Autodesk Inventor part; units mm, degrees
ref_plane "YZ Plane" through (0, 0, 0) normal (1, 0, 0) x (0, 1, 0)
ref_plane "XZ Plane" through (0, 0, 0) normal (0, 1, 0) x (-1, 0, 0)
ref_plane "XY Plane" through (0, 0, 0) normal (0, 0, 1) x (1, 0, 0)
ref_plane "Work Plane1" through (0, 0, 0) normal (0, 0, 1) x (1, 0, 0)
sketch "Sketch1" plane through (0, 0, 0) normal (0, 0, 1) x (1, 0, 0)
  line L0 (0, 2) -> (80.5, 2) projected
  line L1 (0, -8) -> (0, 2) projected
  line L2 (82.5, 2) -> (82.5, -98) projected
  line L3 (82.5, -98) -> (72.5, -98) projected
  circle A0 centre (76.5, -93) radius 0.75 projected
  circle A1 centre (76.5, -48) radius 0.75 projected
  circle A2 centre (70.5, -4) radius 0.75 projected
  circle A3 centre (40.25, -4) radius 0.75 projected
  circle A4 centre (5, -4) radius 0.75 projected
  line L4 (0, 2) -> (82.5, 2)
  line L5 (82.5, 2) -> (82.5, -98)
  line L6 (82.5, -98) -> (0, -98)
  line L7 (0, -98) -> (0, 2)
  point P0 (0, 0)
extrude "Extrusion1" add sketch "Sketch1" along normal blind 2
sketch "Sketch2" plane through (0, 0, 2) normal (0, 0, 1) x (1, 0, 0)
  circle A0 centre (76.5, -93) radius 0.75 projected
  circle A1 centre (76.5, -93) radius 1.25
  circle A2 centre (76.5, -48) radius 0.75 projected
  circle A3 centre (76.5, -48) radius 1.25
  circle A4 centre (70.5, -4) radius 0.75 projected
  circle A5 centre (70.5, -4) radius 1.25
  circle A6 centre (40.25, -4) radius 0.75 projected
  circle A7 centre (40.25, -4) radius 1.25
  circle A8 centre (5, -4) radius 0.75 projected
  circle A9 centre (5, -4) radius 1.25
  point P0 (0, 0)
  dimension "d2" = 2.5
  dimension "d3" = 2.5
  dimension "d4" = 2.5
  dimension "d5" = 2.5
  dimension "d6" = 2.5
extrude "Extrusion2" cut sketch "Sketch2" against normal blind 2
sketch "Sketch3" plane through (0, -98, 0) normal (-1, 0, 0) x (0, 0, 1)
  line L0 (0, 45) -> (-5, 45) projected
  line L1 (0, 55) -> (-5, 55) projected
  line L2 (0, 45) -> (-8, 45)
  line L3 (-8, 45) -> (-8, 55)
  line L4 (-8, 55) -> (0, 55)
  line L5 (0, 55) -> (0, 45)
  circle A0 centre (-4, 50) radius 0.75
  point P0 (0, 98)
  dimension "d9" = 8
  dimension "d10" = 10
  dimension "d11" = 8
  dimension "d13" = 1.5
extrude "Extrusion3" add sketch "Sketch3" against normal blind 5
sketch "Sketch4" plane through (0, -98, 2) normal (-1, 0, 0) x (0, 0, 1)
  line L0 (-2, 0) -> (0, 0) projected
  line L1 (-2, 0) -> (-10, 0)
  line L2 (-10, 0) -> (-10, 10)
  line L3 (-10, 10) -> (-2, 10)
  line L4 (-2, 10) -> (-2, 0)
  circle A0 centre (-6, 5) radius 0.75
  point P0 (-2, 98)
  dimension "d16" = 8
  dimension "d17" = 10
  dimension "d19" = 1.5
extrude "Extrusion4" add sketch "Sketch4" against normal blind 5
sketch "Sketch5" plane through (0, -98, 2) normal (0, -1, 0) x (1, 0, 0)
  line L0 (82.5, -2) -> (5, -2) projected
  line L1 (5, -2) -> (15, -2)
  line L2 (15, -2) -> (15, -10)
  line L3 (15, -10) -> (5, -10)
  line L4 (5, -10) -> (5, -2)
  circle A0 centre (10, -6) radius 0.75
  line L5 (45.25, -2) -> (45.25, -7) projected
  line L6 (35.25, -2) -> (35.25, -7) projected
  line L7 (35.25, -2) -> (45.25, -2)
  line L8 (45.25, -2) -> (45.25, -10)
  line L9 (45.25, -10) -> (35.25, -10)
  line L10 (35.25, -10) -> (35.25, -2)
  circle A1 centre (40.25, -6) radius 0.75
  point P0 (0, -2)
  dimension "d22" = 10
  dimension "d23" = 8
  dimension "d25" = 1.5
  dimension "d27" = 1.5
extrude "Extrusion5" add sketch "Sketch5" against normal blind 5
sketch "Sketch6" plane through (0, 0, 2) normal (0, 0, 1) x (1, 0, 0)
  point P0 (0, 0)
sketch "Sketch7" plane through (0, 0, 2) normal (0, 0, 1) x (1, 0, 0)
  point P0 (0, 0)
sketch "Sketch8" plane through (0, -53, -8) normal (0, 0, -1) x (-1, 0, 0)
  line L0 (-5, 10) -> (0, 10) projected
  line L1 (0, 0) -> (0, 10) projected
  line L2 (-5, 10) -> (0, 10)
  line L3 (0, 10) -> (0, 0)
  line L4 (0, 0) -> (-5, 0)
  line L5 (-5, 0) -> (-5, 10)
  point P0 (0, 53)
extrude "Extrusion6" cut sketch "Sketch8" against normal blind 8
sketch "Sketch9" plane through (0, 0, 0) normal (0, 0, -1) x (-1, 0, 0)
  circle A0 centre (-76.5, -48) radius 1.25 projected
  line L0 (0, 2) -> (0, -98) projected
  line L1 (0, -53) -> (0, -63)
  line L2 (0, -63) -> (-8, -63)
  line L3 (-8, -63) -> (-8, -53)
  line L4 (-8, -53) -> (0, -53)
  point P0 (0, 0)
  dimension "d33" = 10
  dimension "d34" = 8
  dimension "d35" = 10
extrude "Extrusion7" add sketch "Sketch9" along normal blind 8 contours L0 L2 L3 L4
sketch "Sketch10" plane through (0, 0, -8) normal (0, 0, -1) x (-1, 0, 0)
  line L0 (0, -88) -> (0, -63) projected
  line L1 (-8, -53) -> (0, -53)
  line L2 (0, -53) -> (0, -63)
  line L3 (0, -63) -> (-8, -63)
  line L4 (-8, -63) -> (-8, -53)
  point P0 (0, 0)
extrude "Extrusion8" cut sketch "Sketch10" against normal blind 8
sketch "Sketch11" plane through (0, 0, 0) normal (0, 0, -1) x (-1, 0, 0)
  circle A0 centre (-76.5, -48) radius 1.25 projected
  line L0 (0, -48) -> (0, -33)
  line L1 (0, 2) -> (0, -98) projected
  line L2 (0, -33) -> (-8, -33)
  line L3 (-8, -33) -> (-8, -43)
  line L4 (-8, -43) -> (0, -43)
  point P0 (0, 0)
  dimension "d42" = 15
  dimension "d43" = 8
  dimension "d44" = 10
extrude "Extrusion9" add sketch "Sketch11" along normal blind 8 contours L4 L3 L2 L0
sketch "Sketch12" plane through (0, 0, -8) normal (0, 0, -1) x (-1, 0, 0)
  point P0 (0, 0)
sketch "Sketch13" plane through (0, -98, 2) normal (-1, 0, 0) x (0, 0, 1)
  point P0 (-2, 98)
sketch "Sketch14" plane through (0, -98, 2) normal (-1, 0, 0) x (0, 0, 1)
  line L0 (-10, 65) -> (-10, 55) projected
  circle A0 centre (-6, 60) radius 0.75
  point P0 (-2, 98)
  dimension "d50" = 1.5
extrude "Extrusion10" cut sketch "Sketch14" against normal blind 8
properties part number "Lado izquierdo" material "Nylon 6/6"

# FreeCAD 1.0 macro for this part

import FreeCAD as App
import Part
import Sketcher
from FreeCAD import Vector

doc = App.newDocument("Part")
body = doc.addObject("PartDesign::Body", "Body")

sketch1 = body.newObject("Sketcher::SketchObject", "Sketch")
sketch1.AttachmentSupport = (doc.getObject("XY_Plane"), [""])
sketch1.MapMode = "FlatFace"
sketch1.addGeometry(Part.LineSegment(Vector(82.5, 2, 0), Vector(0, 2, 0)), False)
sketch1.addGeometry(Part.LineSegment(Vector(0, 2, 0), Vector(0, -98, 0)), False)
sketch1.addGeometry(Part.LineSegment(Vector(0, -98, 0), Vector(82.5, -98, 0)), False)
sketch1.addGeometry(Part.LineSegment(Vector(82.5, -98, 0), Vector(82.5, 2, 0)), False)
sketch1.addGeometry(Part.Circle(Vector(76.5, -93, 0), Vector(0, 0, 1), 0.8), False)
sketch1.addGeometry(Part.Circle(Vector(5, -4, 0), Vector(0, 0, 1), 0.8), False)
sketch1.addGeometry(Part.Circle(Vector(40.2, -4, 0), Vector(0, 0, 1), 0.8), False)
sketch1.addGeometry(Part.Circle(Vector(76.5, -48, 0), Vector(0, 0, 1), 0.8), False)
sketch1.addGeometry(Part.Circle(Vector(70.5, -4, 0), Vector(0, 0, 1), 0.8), False)
sketch1.addConstraint(Sketcher.Constraint("Coincident", 0, 2, 1, 1))
sketch1.addConstraint(Sketcher.Constraint("Coincident", 1, 2, 2, 1))
sketch1.addConstraint(Sketcher.Constraint("Coincident", 2, 2, 3, 1))
sketch1.addConstraint(Sketcher.Constraint("Coincident", 3, 2, 0, 1))
sketch1.addConstraint(Sketcher.Constraint("Horizontal", 0))
sketch1.addConstraint(Sketcher.Constraint("Vertical", 1))
sketch1.addConstraint(Sketcher.Constraint("Horizontal", 2))
sketch1.addConstraint(Sketcher.Constraint("Vertical", 3))
sketch1.addConstraint(Sketcher.Constraint("Equal", 4, 5))
sketch1.addConstraint(Sketcher.Constraint("Equal", 5, 6))
sketch1.addConstraint(Sketcher.Constraint("Equal", 6, 7))
sketch1.addConstraint(Sketcher.Constraint("Equal", 7, 8))
sketch1.addConstraint(Sketcher.Constraint("PointOnObject", 0, 2, -2))
sketch1.addConstraint(Sketcher.Constraint("Horizontal", 5, 3, 6, 3))
sketch1.addConstraint(Sketcher.Constraint("Horizontal", 6, 3, 8, 3))
sketch1.addConstraint(Sketcher.Constraint("Vertical", 4, 3, 7, 3))
sketch1.addConstraint(Sketcher.Constraint("Diameter", 4, 1.5))
sketch1.addConstraint(Sketcher.Constraint("DistanceY", 1, 2, 1, 1, 100.0))
sketch1.addConstraint(Sketcher.Constraint("DistanceX", 0, 2, 0, 1, 82.5))
sketch1.addConstraint(Sketcher.Constraint("DistanceY", 4, 3, -1, 1, 93.0))
sketch1.addConstraint(Sketcher.Constraint("DistanceX", -1, 1, 5, 3, 5.0))
sketch1.addConstraint(Sketcher.Constraint("DistanceY", 5, 3, -1, 1, 4.0))
sketch1.addConstraint(Sketcher.Constraint("DistanceY", 7, 3, -1, 1, 48.0))
sketch1.addConstraint(Sketcher.Constraint("DistanceY", -1, 1, 0, 2, 2.0))
sketch1.addConstraint(Sketcher.Constraint("DistanceX", 8, 3, 7, 3, 6.0))
sketch1.addConstraint(Sketcher.Constraint("DistanceX", 4, 3, 2, 2, 6.0))
sketch1.addConstraint(Sketcher.Constraint("DistanceX", -1, 1, 6, 3, 40.25))
pad1 = body.newObject("PartDesign::Pad", "Pad")
pad1.Profile = sketch1
pad1.Length = 2

sketch2 = body.newObject("Sketcher::SketchObject", "Sketch001")
sketch2.AttachmentSupport = (doc.getObject("XY_Plane"), [""])
sketch2.MapMode = "FlatFace"
sketch2.AttachmentOffset = App.Placement(Vector(0, 0, 2), App.Rotation())
sketch2.addGeometry(Part.Circle(Vector(76.5, -93, 0), Vector(0, 0, 1), 1.2), False)
sketch2.addGeometry(Part.Circle(Vector(76.5, -93, 0), Vector(0, 0, 1), 0.8), False)
sketch2.addGeometry(Part.Circle(Vector(76.5, -48, 0), Vector(0, 0, 1), 1.2), False)
sketch2.addGeometry(Part.Circle(Vector(76.5, -48, 0), Vector(0, 0, 1), 0.8), False)
sketch2.addGeometry(Part.Circle(Vector(70.5, -4, 0), Vector(0, 0, 1), 1.2), False)
sketch2.addGeometry(Part.Circle(Vector(70.5, -4, 0), Vector(0, 0, 1), 0.8), False)
sketch2.addGeometry(Part.Circle(Vector(40.2, -4, 0), Vector(0, 0, 1), 1.2), False)
sketch2.addGeometry(Part.Circle(Vector(40.2, -4, 0), Vector(0, 0, 1), 0.8), False)
sketch2.addGeometry(Part.Circle(Vector(5, -4, 0), Vector(0, 0, 1), 1.2), False)
sketch2.addGeometry(Part.Circle(Vector(5, -4, 0), Vector(0, 0, 1), 0.8), False)
sketch2.addConstraint(Sketcher.Constraint("Coincident", 1, 3, 0, 3))
sketch2.addConstraint(Sketcher.Constraint("Coincident", 3, 3, 2, 3))
sketch2.addConstraint(Sketcher.Constraint("Coincident", 5, 3, 4, 3))
sketch2.addConstraint(Sketcher.Constraint("Coincident", 7, 3, 6, 3))
sketch2.addConstraint(Sketcher.Constraint("Coincident", 9, 3, 8, 3))
sketch2.addConstraint(Sketcher.Constraint("Equal", 0, 2))
sketch2.addConstraint(Sketcher.Constraint("Equal", 1, 3))
sketch2.addConstraint(Sketcher.Constraint("Equal", 2, 4))
sketch2.addConstraint(Sketcher.Constraint("Equal", 3, 5))
sketch2.addConstraint(Sketcher.Constraint("Equal", 4, 6))
sketch2.addConstraint(Sketcher.Constraint("Equal", 5, 7))
sketch2.addConstraint(Sketcher.Constraint("Equal", 6, 8))
sketch2.addConstraint(Sketcher.Constraint("Equal", 7, 9))
sketch2.addConstraint(Sketcher.Constraint("Horizontal", 5, 3, 6, 3))
sketch2.addConstraint(Sketcher.Constraint("Horizontal", 7, 3, 8, 3))
sketch2.addConstraint(Sketcher.Constraint("Vertical", 1, 3, 2, 3))
sketch2.addConstraint(Sketcher.Constraint("Diameter", 0, 2.5))
sketch2.addConstraint(Sketcher.Constraint("Diameter", 1, 1.5))
sketch2.addConstraint(Sketcher.Constraint("DistanceY", 0, 3, -1, 1, 93.0))
sketch2.addConstraint(Sketcher.Constraint("DistanceY", 2, 3, -1, 1, 48.0))
sketch2.addConstraint(Sketcher.Constraint("DistanceY", 4, 3, -1, 1, 4.0))
sketch2.addConstraint(Sketcher.Constraint("DistanceX", -1, 1, 8, 3, 5.0))
sketch2.addConstraint(Sketcher.Constraint("DistanceX", 4, 3, 2, 3, 6.0))
sketch2.addConstraint(Sketcher.Constraint("DistanceX", -1, 1, 0, 3, 76.5))
sketch2.addConstraint(Sketcher.Constraint("DistanceX", -1, 1, 6, 3, 40.25))
pocket1 = body.newObject("PartDesign::Pocket", "Pocket")
pocket1.Profile = sketch2
pocket1.Length = 2

sketch3 = body.newObject("Sketcher::SketchObject", "Sketch002")
sketch3.AttachmentSupport = (doc.getObject("YZ_Plane"), [""])
sketch3.MapMode = "FlatFace"
sketch3.addGeometry(Part.LineSegment(Vector(-53, -8, 0), Vector(-53, 0, 0)), False)
sketch3.addGeometry(Part.LineSegment(Vector(-53, 0, 0), Vector(-43, 0, 0)), False)
sketch3.addGeometry(Part.LineSegment(Vector(-43, 0, 0), Vector(-43, -8, 0)), False)
sketch3.addGeometry(Part.LineSegment(Vector(-43, -8, 0), Vector(-53, -8, 0)), False)
sketch3.addGeometry(Part.Circle(Vector(-48, -4, 0), Vector(0, 0, 1), 0.8), False)
sketch3.addConstraint(Sketcher.Constraint("Coincident", 0, 2, 1, 1))
sketch3.addConstraint(Sketcher.Constraint("Coincident", 1, 2, 2, 1))
sketch3.addConstraint(Sketcher.Constraint("Coincident", 2, 2, 3, 1))
sketch3.addConstraint(Sketcher.Constraint("Coincident", 3, 2, 0, 1))
sketch3.addConstraint(Sketcher.Constraint("Vertical", 0))
sketch3.addConstraint(Sketcher.Constraint("Horizontal", 1))
sketch3.addConstraint(Sketcher.Constraint("Vertical", 2))
sketch3.addConstraint(Sketcher.Constraint("Horizontal", 3))
sketch3.addConstraint(Sketcher.Constraint("PointOnObject", 0, 2, -1))
sketch3.addConstraint(Sketcher.Constraint("Diameter", 4, 1.5))
sketch3.addConstraint(Sketcher.Constraint("DistanceX", 1, 1, 1, 2, 10.0))
sketch3.addConstraint(Sketcher.Constraint("DistanceY", 0, 1, 0, 2, 8.0))
sketch3.addConstraint(Sketcher.Constraint("DistanceX", 4, 3, -1, 1, 48.0))
sketch3.addConstraint(Sketcher.Constraint("DistanceY", 4, 3, -1, 1, 4.0))
sketch3.addConstraint(Sketcher.Constraint("DistanceX", 0, 2, -1, 1, 53.0))
pad2 = body.newObject("PartDesign::Pad", "Pad001")
pad2.Profile = sketch3
pad2.Length = 5

sketch4 = body.newObject("Sketcher::SketchObject", "Sketch003")
sketch4.AttachmentSupport = (doc.getObject("YZ_Plane"), [""])
sketch4.MapMode = "FlatFace"
sketch4.addGeometry(Part.LineSegment(Vector(-98, -8, 0), Vector(-98, 0, 0)), False)
sketch4.addGeometry(Part.LineSegment(Vector(-98, 0, 0), Vector(-88, 0, 0)), False)
sketch4.addGeometry(Part.LineSegment(Vector(-88, 0, 0), Vector(-88, -8, 0)), False)
sketch4.addGeometry(Part.LineSegment(Vector(-88, -8, 0), Vector(-98, -8, 0)), False)
sketch4.addGeometry(Part.Circle(Vector(-93, -4, 0), Vector(0, 0, 1), 0.8), False)
sketch4.addConstraint(Sketcher.Constraint("Coincident", 0, 2, 1, 1))
sketch4.addConstraint(Sketcher.Constraint("Coincident", 1, 2, 2, 1))
sketch4.addConstraint(Sketcher.Constraint("Coincident", 2, 2, 3, 1))
sketch4.addConstraint(Sketcher.Constraint("Coincident", 3, 2, 0, 1))
sketch4.addConstraint(Sketcher.Constraint("Vertical", 0))
sketch4.addConstraint(Sketcher.Constraint("Horizontal", 1))
sketch4.addConstraint(Sketcher.Constraint("Vertical", 2))
sketch4.addConstraint(Sketcher.Constraint("Horizontal", 3))
sketch4.addConstraint(Sketcher.Constraint("PointOnObject", 0, 2, -1))
sketch4.addConstraint(Sketcher.Constraint("Diameter", 4, 1.5))
sketch4.addConstraint(Sketcher.Constraint("DistanceX", 1, 1, 1, 2, 10.0))
sketch4.addConstraint(Sketcher.Constraint("DistanceY", 0, 1, 0, 2, 8.0))
sketch4.addConstraint(Sketcher.Constraint("DistanceX", 4, 3, -1, 1, 93.0))
sketch4.addConstraint(Sketcher.Constraint("DistanceY", 4, 3, -1, 1, 4.0))
sketch4.addConstraint(Sketcher.Constraint("DistanceX", 0, 2, -1, 1, 98.0))
pad3 = body.newObject("PartDesign::Pad", "Pad002")
pad3.Profile = sketch4
pad3.Length = 5

sketch5 = body.newObject("Sketcher::SketchObject", "Sketch004")
sketch5.AttachmentSupport = (doc.getObject("XZ_Plane"), [""])
sketch5.MapMode = "FlatFace"
sketch5.AttachmentOffset = App.Placement(Vector(0, 0, 98), App.Rotation())
sketch5.addGeometry(Part.LineSegment(Vector(45.2, -8, 0), Vector(45.2, 0, 0)), False)
sketch5.addGeometry(Part.LineSegment(Vector(45.2, 0, 0), Vector(35.2, 0, 0)), False)
sketch5.addGeometry(Part.LineSegment(Vector(35.2, 0, 0), Vector(35.2, -8, 0)), False)
sketch5.addGeometry(Part.LineSegment(Vector(35.2, -8, 0), Vector(45.2, -8, 0)), False)
sketch5.addGeometry(Part.Circle(Vector(40.2, -4, 0), Vector(0, 0, 1), 0.8), False)
sketch5.addGeometry(Part.LineSegment(Vector(15, -8, 0), Vector(15, 0, 0)), False)
sketch5.addGeometry(Part.LineSegment(Vector(15, 0, 0), Vector(5, 0, 0)), False)
sketch5.addGeometry(Part.LineSegment(Vector(5, 0, 0), Vector(5, -8, 0)), False)
sketch5.addGeometry(Part.LineSegment(Vector(5, -8, 0), Vector(15, -8, 0)), False)
sketch5.addGeometry(Part.Circle(Vector(10, -4, 0), Vector(0, 0, 1), 0.8), False)
sketch5.addConstraint(Sketcher.Constraint("Coincident", 0, 2, 1, 1))
sketch5.addConstraint(Sketcher.Constraint("Coincident", 1, 2, 2, 1))
sketch5.addConstraint(Sketcher.Constraint("Coincident", 2, 2, 3, 1))
sketch5.addConstraint(Sketcher.Constraint("Coincident", 3, 2, 0, 1))
sketch5.addConstraint(Sketcher.Constraint("Coincident", 5, 2, 6, 1))
sketch5.addConstraint(Sketcher.Constraint("Coincident", 6, 2, 7, 1))
sketch5.addConstraint(Sketcher.Constraint("Coincident", 7, 2, 8, 1))
sketch5.addConstraint(Sketcher.Constraint("Coincident", 8, 2, 5, 1))
sketch5.addConstraint(Sketcher.Constraint("Vertical", 0))
sketch5.addConstraint(Sketcher.Constraint("Horizontal", 1))
sketch5.addConstraint(Sketcher.Constraint("Vertical", 2))
sketch5.addConstraint(Sketcher.Constraint("Horizontal", 3))
sketch5.addConstraint(Sketcher.Constraint("Vertical", 5))
sketch5.addConstraint(Sketcher.Constraint("Horizontal", 6))
sketch5.addConstraint(Sketcher.Constraint("Vertical", 7))
sketch5.addConstraint(Sketcher.Constraint("Horizontal", 8))
sketch5.addConstraint(Sketcher.Constraint("Equal", 4, 9))
sketch5.addConstraint(Sketcher.Constraint("PointOnObject", 0, 2, -1))
sketch5.addConstraint(Sketcher.Constraint("PointOnObject", 5, 2, -1))
sketch5.addConstraint(Sketcher.Constraint("Horizontal", 4, 3, 9, 3))
sketch5.addConstraint(Sketcher.Constraint("Horizontal", 3, 2, 7, 2))
sketch5.addConstraint(Sketcher.Constraint("Equal", 3, 6))
sketch5.addConstraint(Sketcher.Constraint("Diameter", 4, 1.5))
sketch5.addConstraint(Sketcher.Constraint("DistanceX", 1, 2, 1, 1, 10.0))
sketch5.addConstraint(Sketcher.Constraint("DistanceY", 0, 1, 0, 2, 8.0))
sketch5.addConstraint(Sketcher.Constraint("DistanceX", -1, 1, 9, 3, 10.0))
sketch5.addConstraint(Sketcher.Constraint("DistanceY", 4, 3, -1, 1, 4.0))
sketch5.addConstraint(Sketcher.Constraint("DistanceX", -1, 1, 5, 2, 15.0))
sketch5.addConstraint(Sketcher.Constraint("DistanceX", 4, 3, 0, 2, 5.0))
sketch5.addConstraint(Sketcher.Constraint("DistanceX", -1, 1, 4, 3, 40.25))
pad4 = body.newObject("PartDesign::Pad", "Pad003")
pad4.Profile = sketch5
pad4.Length = 5
pad4.Reversed = True

sketch6 = body.newObject("Sketcher::SketchObject", "Sketch005")
sketch6.AttachmentSupport = (doc.getObject("XY_Plane"), [""])
sketch6.MapMode = "FlatFace"
sketch6.AttachmentOffset = App.Placement(Vector(0, 0, -8), App.Rotation())
sketch6.addGeometry(Part.LineSegment(Vector(0, -43, 0), Vector(5, -43, 0)), False)
sketch6.addGeometry(Part.LineSegment(Vector(5, -43, 0), Vector(5, -53, 0)), False)
sketch6.addGeometry(Part.LineSegment(Vector(5, -53, 0), Vector(0, -53, 0)), False)
sketch6.addGeometry(Part.LineSegment(Vector(0, -53, 0), Vector(0, -43, 0)), False)
sketch6.addConstraint(Sketcher.Constraint("Coincident", 0, 2, 1, 1))
sketch6.addConstraint(Sketcher.Constraint("Coincident", 1, 2, 2, 1))
sketch6.addConstraint(Sketcher.Constraint("Coincident", 2, 2, 3, 1))
sketch6.addConstraint(Sketcher.Constraint("Coincident", 3, 2, 0, 1))
sketch6.addConstraint(Sketcher.Constraint("Horizontal", 0))
sketch6.addConstraint(Sketcher.Constraint("Vertical", 1))
sketch6.addConstraint(Sketcher.Constraint("Horizontal", 2))
sketch6.addConstraint(Sketcher.Constraint("Vertical", 3))
sketch6.addConstraint(Sketcher.Constraint("PointOnObject", 2, 2, -2))
sketch6.addConstraint(Sketcher.Constraint("DistanceX", 0, 1, 0, 2, 5.0))
sketch6.addConstraint(Sketcher.Constraint("DistanceY", 1, 2, 1, 1, 10.0))
sketch6.addConstraint(Sketcher.Constraint("DistanceY", 0, 2, -1, 1, 43.0))
pocket2 = body.newObject("PartDesign::Pocket", "Pocket001")
pocket2.Profile = sketch6
pocket2.Length = 8
pocket2.Reversed = True

sketch7 = body.newObject("Sketcher::SketchObject", "Sketch006")
sketch7.AttachmentSupport = (doc.getObject("XY_Plane"), [""])
sketch7.MapMode = "FlatFace"
sketch7.addGeometry(Part.LineSegment(Vector(0, -63, 0), Vector(0, -53, 0)), False)
sketch7.addGeometry(Part.LineSegment(Vector(0, -53, 0), Vector(8, -53, 0)), False)
sketch7.addGeometry(Part.LineSegment(Vector(8, -53, 0), Vector(8, -63, 0)), False)
sketch7.addGeometry(Part.LineSegment(Vector(8, -63, 0), Vector(0, -63, 0)), False)
sketch7.addConstraint(Sketcher.Constraint("Coincident", 0, 2, 1, 1))
sketch7.addConstraint(Sketcher.Constraint("Coincident", 1, 2, 2, 1))
sketch7.addConstraint(Sketcher.Constraint("Coincident", 2, 2, 3, 1))
sketch7.addConstraint(Sketcher.Constraint("Coincident", 3, 2, 0, 1))
sketch7.addConstraint(Sketcher.Constraint("Vertical", 0))
sketch7.addConstraint(Sketcher.Constraint("Horizontal", 1))
sketch7.addConstraint(Sketcher.Constraint("Vertical", 2))
sketch7.addConstraint(Sketcher.Constraint("Horizontal", 3))
sketch7.addConstraint(Sketcher.Constraint("PointOnObject", 0, 2, -2))
sketch7.addConstraint(Sketcher.Constraint("DistanceX", 1, 1, 1, 2, 8.0))
sketch7.addConstraint(Sketcher.Constraint("DistanceY", 0, 1, 0, 2, 10.0))
sketch7.addConstraint(Sketcher.Constraint("DistanceY", 0, 2, -1, 1, 53.0))
pad5 = body.newObject("PartDesign::Pad", "Pad004")
pad5.Profile = sketch7
pad5.Length = 8
pad5.Reversed = True

sketch8 = body.newObject("Sketcher::SketchObject", "Sketch007")
sketch8.AttachmentSupport = (doc.getObject("XY_Plane"), [""])
sketch8.MapMode = "FlatFace"
sketch8.AttachmentOffset = App.Placement(Vector(0, 0, -8), App.Rotation())
sketch8.addGeometry(Part.LineSegment(Vector(0, -53, 0), Vector(8, -53, 0)), False)
sketch8.addGeometry(Part.LineSegment(Vector(8, -53, 0), Vector(8, -63, 0)), False)
sketch8.addGeometry(Part.LineSegment(Vector(8, -63, 0), Vector(0, -63, 0)), False)
sketch8.addGeometry(Part.LineSegment(Vector(0, -63, 0), Vector(0, -53, 0)), False)
sketch8.addConstraint(Sketcher.Constraint("Coincident", 0, 2, 1, 1))
sketch8.addConstraint(Sketcher.Constraint("Coincident", 1, 2, 2, 1))
sketch8.addConstraint(Sketcher.Constraint("Coincident", 2, 2, 3, 1))
sketch8.addConstraint(Sketcher.Constraint("Coincident", 3, 2, 0, 1))
sketch8.addConstraint(Sketcher.Constraint("Horizontal", 0))
sketch8.addConstraint(Sketcher.Constraint("Vertical", 1))
sketch8.addConstraint(Sketcher.Constraint("Horizontal", 2))
sketch8.addConstraint(Sketcher.Constraint("Vertical", 3))
sketch8.addConstraint(Sketcher.Constraint("PointOnObject", 2, 2, -2))
sketch8.addConstraint(Sketcher.Constraint("DistanceX", 0, 1, 0, 2, 8.0))
sketch8.addConstraint(Sketcher.Constraint("DistanceY", 1, 2, 1, 1, 10.0))
sketch8.addConstraint(Sketcher.Constraint("DistanceY", 0, 2, -1, 1, 53.0))
pocket3 = body.newObject("PartDesign::Pocket", "Pocket002")
pocket3.Profile = sketch8
pocket3.Length = 8
pocket3.Reversed = True

sketch9 = body.newObject("Sketcher::SketchObject", "Sketch008")
sketch9.AttachmentSupport = (doc.getObject("XY_Plane"), [""])
sketch9.MapMode = "FlatFace"
sketch9.addGeometry(Part.LineSegment(Vector(8, -43, 0), Vector(0, -43, 0)), False)
sketch9.addGeometry(Part.LineSegment(Vector(0, -43, 0), Vector(0, -33, 0)), False)
sketch9.addGeometry(Part.LineSegment(Vector(0, -33, 0), Vector(8, -33, 0)), False)
sketch9.addGeometry(Part.LineSegment(Vector(8, -33, 0), Vector(8, -43, 0)), False)
sketch9.addConstraint(Sketcher.Constraint("Coincident", 0, 2, 1, 1))
sketch9.addConstraint(Sketcher.Constraint("Coincident", 1, 2, 2, 1))
sketch9.addConstraint(Sketcher.Constraint("Coincident", 2, 2, 3, 1))
sketch9.addConstraint(Sketcher.Constraint("Coincident", 3, 2, 0, 1))
sketch9.addConstraint(Sketcher.Constraint("Horizontal", 0))
sketch9.addConstraint(Sketcher.Constraint("Vertical", 1))
sketch9.addConstraint(Sketcher.Constraint("Horizontal", 2))
sketch9.addConstraint(Sketcher.Constraint("Vertical", 3))
sketch9.addConstraint(Sketcher.Constraint("PointOnObject", 0, 2, -2))
sketch9.addConstraint(Sketcher.Constraint("DistanceX", 0, 2, 0, 1, 8.0))
sketch9.addConstraint(Sketcher.Constraint("DistanceY", 1, 1, 1, 2, 10.0))
sketch9.addConstraint(Sketcher.Constraint("DistanceY", 0, 2, -1, 1, 43.0))
pad6 = body.newObject("PartDesign::Pad", "Pad005")
pad6.Profile = sketch9
pad6.Length = 8
pad6.Reversed = True

sketch10 = body.newObject("Sketcher::SketchObject", "Sketch009")
sketch10.AttachmentSupport = (doc.getObject("YZ_Plane"), [""])
sketch10.MapMode = "FlatFace"
sketch10.addGeometry(Part.Circle(Vector(-38, -4, 0), Vector(0, 0, 1), 0.8), False)
sketch10.addConstraint(Sketcher.Constraint("Diameter", 0, 1.5))
sketch10.addConstraint(Sketcher.Constraint("DistanceX", 0, 3, -1, 1, 38.0))
sketch10.addConstraint(Sketcher.Constraint("DistanceY", 0, 3, -1, 1, 4.0))
pocket4 = body.newObject("PartDesign::Pocket", "Pocket003")
pocket4.Profile = sketch10
pocket4.Length = 8
pocket4.Reversed = True

doc.recompute()
